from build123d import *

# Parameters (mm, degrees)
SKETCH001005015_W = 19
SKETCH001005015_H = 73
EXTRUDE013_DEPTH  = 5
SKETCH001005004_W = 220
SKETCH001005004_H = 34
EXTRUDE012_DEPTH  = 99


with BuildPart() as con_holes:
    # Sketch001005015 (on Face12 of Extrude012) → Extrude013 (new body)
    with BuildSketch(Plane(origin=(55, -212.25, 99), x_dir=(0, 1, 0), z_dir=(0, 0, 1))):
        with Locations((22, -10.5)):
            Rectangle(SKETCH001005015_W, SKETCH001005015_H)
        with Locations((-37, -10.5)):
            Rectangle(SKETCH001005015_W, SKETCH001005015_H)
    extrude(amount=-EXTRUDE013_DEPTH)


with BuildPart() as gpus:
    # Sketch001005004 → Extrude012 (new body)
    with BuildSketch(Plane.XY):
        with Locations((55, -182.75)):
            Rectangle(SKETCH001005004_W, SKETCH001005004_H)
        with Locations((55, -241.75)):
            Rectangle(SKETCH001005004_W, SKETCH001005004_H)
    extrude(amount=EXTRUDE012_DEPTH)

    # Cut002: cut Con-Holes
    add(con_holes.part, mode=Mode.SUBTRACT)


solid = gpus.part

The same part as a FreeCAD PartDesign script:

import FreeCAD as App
import Part
import Sketcher
Q = App.Units.Quantity

doc = App.newDocument("Part")
body = doc.addObject("PartDesign::Body", "Body")
body.AllowCompound = True

sketch1 = doc.addObject("Sketcher::SketchObject", "Sketch")
body.addObject(sketch1)
sketch1.AttachmentSupport = (doc.XY_Plane, [""])
sketch1.MapMode = "FlatFace"
sketch1.AttachmentOffset = App.Placement(App.Vector(0, 0, 99), App.Rotation())
sketch1.addGeometry([
    Part.LineSegment(App.Vector(29, -200, 0), App.Vector(102, -200, 0)),
    Part.LineSegment(App.Vector(102, -200, 0), App.Vector(102, -181, 0)),
    Part.LineSegment(App.Vector(102, -181, 0), App.Vector(29, -181, 0)),
    Part.LineSegment(App.Vector(29, -181, 0), App.Vector(29, -200, 0)),
    Part.LineSegment(App.Vector(29, -259, 0), App.Vector(102, -259, 0)),
    Part.LineSegment(App.Vector(102, -259, 0), App.Vector(102, -240, 0)),
    Part.LineSegment(App.Vector(102, -240, 0), App.Vector(29, -240, 0)),
    Part.LineSegment(App.Vector(29, -240, 0), App.Vector(29, -259, 0)),
], False)
sketch1.addConstraint([
    Sketcher.Constraint("Coincident", 0, 2, 1, 1),
    Sketcher.Constraint("Coincident", 1, 2, 2, 1),
    Sketcher.Constraint("Coincident", 2, 2, 3, 1),
    Sketcher.Constraint("Coincident", 3, 2, 0, 1),
    Sketcher.Constraint("Coincident", 4, 2, 5, 1),
    Sketcher.Constraint("Coincident", 5, 2, 6, 1),
    Sketcher.Constraint("Coincident", 6, 2, 7, 1),
    Sketcher.Constraint("Coincident", 7, 2, 4, 1),
    Sketcher.Constraint("Horizontal", 0),
    Sketcher.Constraint("Vertical", 1),
    Sketcher.Constraint("Horizontal", 2),
    Sketcher.Constraint("Vertical", 3),
    Sketcher.Constraint("Horizontal", 4),
    Sketcher.Constraint("Vertical", 5),
    Sketcher.Constraint("Horizontal", 6),
    Sketcher.Constraint("Vertical", 7),
    Sketcher.Constraint("Vertical", 1, 2, 4, 2),
    Sketcher.Constraint("Vertical", 3, 2, 6, 2),
    Sketcher.Constraint("Equal", 3, 5),
    Sketcher.Constraint("DistanceX", 0, 1, 0, 2, Q("73 mm")),
    Sketcher.Constraint("DistanceY", 1, 1, 1, 2, Q("19 mm")),
    Sketcher.Constraint("DistanceX", -1, 1, 0, 2, Q("102 mm")),
    Sketcher.Constraint("DistanceY", 4, 2, 0, 2, Q("59 mm")),
    Sketcher.Constraint("DistanceY", 0, 2, -1, 1, Q("199.75 mm")),
])
pad1 = doc.addObject("PartDesign::Pad", "Pad")
body.addObject(pad1)
pad1.Profile = sketch1
pad1.Length = 5
pad1.Reversed = True
body2 = doc.addObject("PartDesign::Body", "Body001")
body2.AllowCompound = True

sketch2 = doc.addObject("Sketcher::SketchObject", "Sketch001")
body2.addObject(sketch2)
sketch2.AttachmentSupport = (doc.getObject("XY_Plane001"), [""])
sketch2.MapMode = "FlatFace"
sketch2.addGeometry([
    Part.LineSegment(App.Vector(-55, -166, 0), App.Vector(-55, -200, 0)),
    Part.LineSegment(App.Vector(-55, -200, 0), App.Vector(165, -200, 0)),
    Part.LineSegment(App.Vector(165, -200, 0), App.Vector(165, -166, 0)),
    Part.LineSegment(App.Vector(165, -166, 0), App.Vector(-55, -166, 0)),
    Part.LineSegment(App.Vector(-55, -225, 0), App.Vector(-55, -259, 0)),
    Part.LineSegment(App.Vector(-55, -259, 0), App.Vector(165, -259, 0)),
    Part.LineSegment(App.Vector(165, -259, 0), App.Vector(165, -225, 0)),
    Part.LineSegment(App.Vector(165, -225, 0), App.Vector(-55, -225, 0)),
], False)
sketch2.addConstraint([
    Sketcher.Constraint("Coincident", 0, 2, 1, 1),
    Sketcher.Constraint("Coincident", 1, 2, 2, 1),
    Sketcher.Constraint("Coincident", 2, 2, 3, 1),
    Sketcher.Constraint("Coincident", 3, 2, 0, 1),
    Sketcher.Constraint("Coincident", 4, 2, 5, 1),
    Sketcher.Constraint("Coincident", 5, 2, 6, 1),
    Sketcher.Constraint("Coincident", 6, 2, 7, 1),
    Sketcher.Constraint("Coincident", 7, 2, 4, 1),
    Sketcher.Constraint("Vertical", 0),
    Sketcher.Constraint("Horizontal", 1),
    Sketcher.Constraint("Vertical", 2),
    Sketcher.Constraint("Horizontal", 3),
    Sketcher.Constraint("Vertical", 4),
    Sketcher.Constraint("Horizontal", 5),
    Sketcher.Constraint("Vertical", 6),
    Sketcher.Constraint("Horizontal", 7),
    Sketcher.Constraint("Vertical", 3, 2, 4, 2),
    Sketcher.Constraint("Vertical", 2, 2, 5, 2),
    Sketcher.Constraint("Equal", 2, 4),
    Sketcher.Constraint("DistanceX", 1, 1, 1, 2, Q("220 mm")),
    Sketcher.Constraint("DistanceY", 0, 2, 0, 1, Q("34 mm")),
    Sketcher.Constraint("DistanceX", 0, 2, -1, 1, Q("55 mm")),
    Sketcher.Constraint("DistanceY", 4, 2, 0, 2, Q("59 mm")),
    Sketcher.Constraint("DistanceY", 0, 2, -1, 1, Q("199.75 mm")),
])
pad2 = doc.addObject("PartDesign::Pad", "Pad001")
body2.addObject(pad2)
pad2.Profile = sketch2
pad2.Length = 99
doc.recompute()

boolean = doc.addObject("PartDesign::Boolean", "Boolean")
body2.addObject(boolean)
boolean.Type = "Cut"
boolean.addObjects([body])

doc.recompute()
